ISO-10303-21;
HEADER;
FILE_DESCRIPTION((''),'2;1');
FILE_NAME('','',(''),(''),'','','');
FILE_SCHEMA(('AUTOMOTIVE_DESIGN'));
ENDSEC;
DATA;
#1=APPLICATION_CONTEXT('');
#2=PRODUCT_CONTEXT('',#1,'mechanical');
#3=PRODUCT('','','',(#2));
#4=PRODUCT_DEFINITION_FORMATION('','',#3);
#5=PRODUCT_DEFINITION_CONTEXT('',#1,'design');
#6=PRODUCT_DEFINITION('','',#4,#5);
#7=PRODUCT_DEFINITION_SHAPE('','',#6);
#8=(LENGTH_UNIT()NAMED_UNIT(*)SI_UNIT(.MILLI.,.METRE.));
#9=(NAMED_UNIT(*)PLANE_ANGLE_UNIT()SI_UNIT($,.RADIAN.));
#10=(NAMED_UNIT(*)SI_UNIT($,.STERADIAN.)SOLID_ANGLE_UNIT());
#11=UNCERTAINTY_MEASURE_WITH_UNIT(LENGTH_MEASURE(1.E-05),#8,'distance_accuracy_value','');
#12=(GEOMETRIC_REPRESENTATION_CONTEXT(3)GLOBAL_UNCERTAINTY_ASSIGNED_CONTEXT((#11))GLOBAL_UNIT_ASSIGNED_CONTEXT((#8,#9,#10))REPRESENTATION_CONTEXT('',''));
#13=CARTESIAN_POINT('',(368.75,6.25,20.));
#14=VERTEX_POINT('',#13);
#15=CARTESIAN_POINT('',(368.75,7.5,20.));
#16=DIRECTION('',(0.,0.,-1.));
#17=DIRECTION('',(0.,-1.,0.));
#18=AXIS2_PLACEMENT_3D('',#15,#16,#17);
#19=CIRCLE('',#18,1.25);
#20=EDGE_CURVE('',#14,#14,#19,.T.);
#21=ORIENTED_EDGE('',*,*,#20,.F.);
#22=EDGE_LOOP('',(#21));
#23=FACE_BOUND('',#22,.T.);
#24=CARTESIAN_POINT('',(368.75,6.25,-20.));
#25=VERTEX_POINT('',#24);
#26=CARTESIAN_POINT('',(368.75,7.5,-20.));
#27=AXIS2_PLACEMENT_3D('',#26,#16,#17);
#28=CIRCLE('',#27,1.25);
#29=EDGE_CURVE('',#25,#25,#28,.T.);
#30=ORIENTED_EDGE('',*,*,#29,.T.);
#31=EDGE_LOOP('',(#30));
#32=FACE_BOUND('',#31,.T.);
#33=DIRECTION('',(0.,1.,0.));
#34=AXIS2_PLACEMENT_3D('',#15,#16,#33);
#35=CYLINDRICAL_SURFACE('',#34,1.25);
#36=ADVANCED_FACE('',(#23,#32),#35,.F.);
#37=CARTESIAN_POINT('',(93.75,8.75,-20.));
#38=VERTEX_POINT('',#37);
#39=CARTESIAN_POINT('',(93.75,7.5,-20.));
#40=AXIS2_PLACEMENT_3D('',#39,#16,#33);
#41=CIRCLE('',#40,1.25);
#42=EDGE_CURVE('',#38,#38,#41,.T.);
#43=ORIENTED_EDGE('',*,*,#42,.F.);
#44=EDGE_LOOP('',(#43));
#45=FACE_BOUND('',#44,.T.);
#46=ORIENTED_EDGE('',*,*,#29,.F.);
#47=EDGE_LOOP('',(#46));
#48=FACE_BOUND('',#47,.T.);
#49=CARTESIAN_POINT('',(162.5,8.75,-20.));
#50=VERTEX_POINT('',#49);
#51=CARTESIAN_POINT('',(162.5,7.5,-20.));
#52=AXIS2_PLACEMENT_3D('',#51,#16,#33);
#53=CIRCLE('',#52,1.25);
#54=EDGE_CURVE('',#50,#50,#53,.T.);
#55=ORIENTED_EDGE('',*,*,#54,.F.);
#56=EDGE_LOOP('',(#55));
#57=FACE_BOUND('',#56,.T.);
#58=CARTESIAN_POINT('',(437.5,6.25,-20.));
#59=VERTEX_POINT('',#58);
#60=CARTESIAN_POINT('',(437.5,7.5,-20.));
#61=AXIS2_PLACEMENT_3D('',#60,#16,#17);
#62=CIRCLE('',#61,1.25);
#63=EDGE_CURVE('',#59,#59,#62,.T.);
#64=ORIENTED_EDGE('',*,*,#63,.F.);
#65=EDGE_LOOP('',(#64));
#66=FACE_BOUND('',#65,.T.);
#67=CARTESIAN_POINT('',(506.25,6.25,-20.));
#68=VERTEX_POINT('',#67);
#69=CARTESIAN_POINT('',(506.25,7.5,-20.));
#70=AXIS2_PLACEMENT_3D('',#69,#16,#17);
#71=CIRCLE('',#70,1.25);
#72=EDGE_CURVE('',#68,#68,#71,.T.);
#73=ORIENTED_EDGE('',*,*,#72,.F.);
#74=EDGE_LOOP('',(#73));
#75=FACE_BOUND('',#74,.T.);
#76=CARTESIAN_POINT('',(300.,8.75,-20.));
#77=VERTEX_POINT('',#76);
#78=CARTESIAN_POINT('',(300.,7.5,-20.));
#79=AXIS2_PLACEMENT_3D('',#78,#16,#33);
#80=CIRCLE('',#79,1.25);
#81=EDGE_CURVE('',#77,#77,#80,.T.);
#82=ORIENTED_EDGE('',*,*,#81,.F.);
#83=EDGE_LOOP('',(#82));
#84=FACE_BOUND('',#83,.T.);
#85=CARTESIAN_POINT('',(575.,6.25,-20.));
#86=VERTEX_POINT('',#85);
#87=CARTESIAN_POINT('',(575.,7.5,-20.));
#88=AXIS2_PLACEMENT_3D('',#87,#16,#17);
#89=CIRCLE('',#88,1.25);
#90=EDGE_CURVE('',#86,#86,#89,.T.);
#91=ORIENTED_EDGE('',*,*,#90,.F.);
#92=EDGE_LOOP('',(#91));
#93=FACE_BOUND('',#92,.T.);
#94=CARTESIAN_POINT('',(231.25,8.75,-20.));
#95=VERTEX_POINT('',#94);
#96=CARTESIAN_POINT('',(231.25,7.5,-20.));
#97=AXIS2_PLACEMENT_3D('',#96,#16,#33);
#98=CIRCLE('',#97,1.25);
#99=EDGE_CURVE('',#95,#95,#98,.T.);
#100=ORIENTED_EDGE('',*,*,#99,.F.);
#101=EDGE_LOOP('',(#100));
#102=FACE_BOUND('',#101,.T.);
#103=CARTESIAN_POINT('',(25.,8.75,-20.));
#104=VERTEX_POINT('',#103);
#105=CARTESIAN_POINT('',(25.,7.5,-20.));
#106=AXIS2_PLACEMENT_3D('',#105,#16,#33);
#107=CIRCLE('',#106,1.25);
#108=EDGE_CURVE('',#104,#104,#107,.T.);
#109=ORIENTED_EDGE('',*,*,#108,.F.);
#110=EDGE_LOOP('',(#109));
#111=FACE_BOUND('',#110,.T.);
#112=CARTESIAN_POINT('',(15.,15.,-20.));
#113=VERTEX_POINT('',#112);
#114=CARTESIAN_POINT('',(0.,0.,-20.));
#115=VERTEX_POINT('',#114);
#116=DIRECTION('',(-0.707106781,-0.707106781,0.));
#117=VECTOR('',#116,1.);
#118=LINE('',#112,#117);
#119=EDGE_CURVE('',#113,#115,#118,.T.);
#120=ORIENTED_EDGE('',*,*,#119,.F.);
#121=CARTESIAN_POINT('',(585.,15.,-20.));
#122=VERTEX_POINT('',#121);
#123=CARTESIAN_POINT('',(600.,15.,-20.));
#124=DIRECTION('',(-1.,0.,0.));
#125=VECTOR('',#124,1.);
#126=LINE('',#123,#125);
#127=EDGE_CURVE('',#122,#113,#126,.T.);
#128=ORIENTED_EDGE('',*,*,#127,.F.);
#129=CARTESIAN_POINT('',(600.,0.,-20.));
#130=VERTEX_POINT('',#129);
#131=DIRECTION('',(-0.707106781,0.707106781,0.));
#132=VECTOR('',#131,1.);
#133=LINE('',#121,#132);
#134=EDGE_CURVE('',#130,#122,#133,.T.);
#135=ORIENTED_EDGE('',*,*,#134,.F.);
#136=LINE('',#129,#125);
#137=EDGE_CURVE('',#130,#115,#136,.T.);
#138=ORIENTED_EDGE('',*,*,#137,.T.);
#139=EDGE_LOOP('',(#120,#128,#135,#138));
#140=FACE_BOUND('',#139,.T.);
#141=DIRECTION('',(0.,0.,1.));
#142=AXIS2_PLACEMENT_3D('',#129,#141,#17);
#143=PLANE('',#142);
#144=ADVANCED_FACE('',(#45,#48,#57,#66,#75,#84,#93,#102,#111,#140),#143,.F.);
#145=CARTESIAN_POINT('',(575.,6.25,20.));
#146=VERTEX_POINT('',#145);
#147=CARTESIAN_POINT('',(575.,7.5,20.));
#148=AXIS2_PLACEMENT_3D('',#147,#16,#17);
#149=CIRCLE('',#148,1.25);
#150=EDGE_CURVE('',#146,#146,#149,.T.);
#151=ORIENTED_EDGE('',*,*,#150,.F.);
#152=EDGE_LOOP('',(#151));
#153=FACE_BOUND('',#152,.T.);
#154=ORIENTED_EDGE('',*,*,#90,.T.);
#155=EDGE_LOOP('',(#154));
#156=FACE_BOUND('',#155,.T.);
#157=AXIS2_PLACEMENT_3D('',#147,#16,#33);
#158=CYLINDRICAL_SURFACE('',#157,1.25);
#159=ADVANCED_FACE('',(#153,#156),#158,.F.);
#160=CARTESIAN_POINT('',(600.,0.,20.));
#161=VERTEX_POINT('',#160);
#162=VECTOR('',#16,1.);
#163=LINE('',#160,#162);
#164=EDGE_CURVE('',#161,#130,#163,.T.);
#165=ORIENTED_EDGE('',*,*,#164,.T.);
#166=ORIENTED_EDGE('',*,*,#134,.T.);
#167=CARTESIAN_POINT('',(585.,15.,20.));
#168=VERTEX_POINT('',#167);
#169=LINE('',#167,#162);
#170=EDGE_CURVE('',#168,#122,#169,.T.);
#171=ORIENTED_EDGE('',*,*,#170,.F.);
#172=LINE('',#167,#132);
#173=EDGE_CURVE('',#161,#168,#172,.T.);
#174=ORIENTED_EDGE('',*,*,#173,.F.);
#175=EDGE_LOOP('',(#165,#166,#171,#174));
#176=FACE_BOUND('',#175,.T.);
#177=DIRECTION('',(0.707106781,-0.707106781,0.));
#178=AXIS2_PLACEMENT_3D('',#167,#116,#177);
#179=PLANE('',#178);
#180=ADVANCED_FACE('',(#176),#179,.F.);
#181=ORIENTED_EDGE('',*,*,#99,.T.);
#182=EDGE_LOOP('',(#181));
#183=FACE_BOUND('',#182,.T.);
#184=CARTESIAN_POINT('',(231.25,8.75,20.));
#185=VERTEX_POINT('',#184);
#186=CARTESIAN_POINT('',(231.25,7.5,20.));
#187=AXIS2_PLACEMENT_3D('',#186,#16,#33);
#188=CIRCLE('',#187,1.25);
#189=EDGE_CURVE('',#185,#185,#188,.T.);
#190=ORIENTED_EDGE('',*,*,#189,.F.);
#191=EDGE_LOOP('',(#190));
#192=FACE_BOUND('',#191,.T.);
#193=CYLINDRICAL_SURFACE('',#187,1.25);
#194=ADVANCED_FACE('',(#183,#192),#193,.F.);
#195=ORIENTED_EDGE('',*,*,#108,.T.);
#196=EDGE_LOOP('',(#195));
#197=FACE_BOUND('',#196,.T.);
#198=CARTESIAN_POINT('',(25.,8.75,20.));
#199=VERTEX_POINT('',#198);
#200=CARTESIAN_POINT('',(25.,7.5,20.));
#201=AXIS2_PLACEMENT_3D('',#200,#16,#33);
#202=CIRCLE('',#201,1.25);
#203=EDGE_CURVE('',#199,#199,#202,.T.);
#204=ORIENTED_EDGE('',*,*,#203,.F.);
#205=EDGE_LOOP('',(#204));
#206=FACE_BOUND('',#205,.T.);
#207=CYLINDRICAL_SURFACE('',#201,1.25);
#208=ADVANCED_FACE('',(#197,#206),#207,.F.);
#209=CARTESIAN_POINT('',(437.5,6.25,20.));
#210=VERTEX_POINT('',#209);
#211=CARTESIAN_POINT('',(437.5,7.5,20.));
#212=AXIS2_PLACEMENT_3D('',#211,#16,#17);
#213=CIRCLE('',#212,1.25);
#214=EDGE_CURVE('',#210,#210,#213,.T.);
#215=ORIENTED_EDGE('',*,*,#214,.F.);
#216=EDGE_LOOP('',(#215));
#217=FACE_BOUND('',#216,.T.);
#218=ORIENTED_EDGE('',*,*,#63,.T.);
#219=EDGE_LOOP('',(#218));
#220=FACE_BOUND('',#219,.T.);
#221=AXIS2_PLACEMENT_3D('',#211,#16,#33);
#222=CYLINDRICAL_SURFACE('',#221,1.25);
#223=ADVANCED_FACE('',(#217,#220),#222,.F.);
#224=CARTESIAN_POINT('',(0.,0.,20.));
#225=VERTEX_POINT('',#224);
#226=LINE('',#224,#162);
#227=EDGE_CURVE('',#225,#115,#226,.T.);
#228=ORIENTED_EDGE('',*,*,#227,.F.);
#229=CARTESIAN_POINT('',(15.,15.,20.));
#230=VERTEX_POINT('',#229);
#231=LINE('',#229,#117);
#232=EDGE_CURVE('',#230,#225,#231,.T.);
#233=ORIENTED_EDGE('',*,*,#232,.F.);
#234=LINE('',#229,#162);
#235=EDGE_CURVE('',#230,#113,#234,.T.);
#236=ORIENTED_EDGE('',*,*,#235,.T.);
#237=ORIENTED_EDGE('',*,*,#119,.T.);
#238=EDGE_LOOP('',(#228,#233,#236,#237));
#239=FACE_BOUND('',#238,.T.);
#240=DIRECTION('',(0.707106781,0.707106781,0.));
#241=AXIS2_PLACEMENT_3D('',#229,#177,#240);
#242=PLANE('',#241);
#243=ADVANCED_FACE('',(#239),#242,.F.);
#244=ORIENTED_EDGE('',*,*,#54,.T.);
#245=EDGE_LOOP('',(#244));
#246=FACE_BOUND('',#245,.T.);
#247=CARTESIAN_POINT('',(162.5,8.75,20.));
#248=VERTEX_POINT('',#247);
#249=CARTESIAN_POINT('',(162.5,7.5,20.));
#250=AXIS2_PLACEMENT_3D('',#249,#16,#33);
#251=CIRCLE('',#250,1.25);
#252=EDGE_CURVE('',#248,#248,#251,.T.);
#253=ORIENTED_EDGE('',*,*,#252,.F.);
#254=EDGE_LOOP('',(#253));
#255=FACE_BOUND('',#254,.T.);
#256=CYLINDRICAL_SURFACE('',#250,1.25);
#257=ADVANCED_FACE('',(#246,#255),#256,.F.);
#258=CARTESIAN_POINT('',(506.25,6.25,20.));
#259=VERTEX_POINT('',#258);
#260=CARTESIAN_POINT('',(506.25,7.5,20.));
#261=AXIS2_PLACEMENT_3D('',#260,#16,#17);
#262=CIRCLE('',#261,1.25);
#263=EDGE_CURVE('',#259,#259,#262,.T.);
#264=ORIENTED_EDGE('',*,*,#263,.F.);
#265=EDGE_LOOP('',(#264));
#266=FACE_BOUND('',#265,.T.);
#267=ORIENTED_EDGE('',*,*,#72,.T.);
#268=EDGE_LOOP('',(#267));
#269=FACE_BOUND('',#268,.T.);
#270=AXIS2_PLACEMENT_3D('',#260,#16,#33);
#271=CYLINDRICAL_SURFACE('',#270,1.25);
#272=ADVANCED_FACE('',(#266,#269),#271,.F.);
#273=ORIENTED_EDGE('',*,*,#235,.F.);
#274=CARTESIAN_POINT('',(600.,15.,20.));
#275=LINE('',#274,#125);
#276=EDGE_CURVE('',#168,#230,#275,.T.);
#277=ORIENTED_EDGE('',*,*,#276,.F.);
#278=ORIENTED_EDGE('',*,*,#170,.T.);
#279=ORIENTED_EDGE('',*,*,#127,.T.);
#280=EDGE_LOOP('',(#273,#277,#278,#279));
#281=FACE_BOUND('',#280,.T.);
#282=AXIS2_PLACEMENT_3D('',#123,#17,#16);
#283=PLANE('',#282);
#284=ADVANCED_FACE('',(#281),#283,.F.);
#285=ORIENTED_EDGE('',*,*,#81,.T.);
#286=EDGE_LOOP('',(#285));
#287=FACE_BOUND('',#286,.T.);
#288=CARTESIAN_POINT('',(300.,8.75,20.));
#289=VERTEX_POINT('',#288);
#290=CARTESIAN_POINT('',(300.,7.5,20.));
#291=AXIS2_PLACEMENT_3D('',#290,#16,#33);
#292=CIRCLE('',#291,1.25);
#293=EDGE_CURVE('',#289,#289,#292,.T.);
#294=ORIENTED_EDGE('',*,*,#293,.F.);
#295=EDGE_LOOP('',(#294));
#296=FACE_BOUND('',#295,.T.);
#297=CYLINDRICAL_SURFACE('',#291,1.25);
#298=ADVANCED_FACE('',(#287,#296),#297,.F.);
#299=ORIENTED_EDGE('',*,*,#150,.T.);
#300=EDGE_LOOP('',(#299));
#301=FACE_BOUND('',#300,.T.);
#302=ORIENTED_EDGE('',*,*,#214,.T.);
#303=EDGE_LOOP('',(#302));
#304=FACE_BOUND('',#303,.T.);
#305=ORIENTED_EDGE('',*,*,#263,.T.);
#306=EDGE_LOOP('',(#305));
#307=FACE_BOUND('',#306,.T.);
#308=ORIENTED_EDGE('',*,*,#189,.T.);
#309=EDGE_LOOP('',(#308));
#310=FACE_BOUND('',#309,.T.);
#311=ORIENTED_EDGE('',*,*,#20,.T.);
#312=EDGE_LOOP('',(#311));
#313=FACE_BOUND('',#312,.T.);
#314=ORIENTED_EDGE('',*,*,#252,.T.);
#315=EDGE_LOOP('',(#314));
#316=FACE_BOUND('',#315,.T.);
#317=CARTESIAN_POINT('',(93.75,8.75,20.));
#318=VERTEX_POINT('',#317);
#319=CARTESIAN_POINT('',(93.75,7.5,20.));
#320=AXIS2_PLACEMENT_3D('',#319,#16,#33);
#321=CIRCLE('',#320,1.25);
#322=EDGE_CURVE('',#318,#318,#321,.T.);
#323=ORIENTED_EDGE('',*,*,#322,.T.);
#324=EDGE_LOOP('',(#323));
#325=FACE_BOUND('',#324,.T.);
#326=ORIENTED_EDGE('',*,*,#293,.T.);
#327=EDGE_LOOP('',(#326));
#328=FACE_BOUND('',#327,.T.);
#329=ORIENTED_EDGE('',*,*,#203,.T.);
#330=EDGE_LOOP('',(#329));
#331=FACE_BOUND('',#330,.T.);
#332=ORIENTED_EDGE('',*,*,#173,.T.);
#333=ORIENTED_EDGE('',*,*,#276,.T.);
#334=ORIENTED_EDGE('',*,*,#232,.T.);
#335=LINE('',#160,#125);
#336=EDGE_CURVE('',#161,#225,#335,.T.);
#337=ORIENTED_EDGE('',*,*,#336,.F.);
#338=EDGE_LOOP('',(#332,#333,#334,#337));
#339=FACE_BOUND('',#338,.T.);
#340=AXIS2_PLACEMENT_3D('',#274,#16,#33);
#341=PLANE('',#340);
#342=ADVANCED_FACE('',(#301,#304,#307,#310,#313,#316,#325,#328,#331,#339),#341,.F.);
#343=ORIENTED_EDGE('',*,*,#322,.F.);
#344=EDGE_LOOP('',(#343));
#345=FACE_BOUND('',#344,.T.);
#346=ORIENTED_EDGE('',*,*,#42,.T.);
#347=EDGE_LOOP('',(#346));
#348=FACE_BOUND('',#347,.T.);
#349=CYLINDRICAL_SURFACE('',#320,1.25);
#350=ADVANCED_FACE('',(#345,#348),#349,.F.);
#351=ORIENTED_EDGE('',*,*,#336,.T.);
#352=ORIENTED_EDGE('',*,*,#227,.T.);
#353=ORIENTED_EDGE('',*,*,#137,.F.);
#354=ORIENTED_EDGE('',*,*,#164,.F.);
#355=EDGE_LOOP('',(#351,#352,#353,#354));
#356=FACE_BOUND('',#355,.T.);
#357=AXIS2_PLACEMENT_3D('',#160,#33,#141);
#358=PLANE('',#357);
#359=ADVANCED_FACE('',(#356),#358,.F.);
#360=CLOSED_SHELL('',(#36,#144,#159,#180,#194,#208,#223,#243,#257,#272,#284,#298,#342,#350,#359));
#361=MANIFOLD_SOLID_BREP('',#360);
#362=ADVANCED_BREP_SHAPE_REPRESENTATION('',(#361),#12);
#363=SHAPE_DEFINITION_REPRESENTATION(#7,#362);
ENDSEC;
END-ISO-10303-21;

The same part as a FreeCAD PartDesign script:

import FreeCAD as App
import Part
import Sketcher
from FreeCAD import Vector

doc = App.newDocument("Part")
body = doc.addObject("PartDesign::Body", "Body")

# Sketch on YZ plane
sketch1 = body.newObject("Sketcher::SketchObject", "Sketch")
sketch1.AttachmentSupport = (doc.getObject("YZ_Plane"), [""])
sketch1.MapMode = "FlatFace"
sketch1.addGeometry([
    Part.LineSegment(Vector(0, 20, 0), Vector(0, -20, 0)),
    Part.LineSegment(Vector(0, -20, 0), Vector(15, -20, 0)),
    Part.LineSegment(Vector(15, -20, 0), Vector(15, 20, 0)),
    Part.LineSegment(Vector(15, 20, 0), Vector(0, 20, 0)),
], False)
sketch1.addConstraint([
    Sketcher.Constraint("Coincident", 0, 2, 1, 1),
    Sketcher.Constraint("Coincident", 1, 2, 2, 1),
    Sketcher.Constraint("Coincident", 2, 2, 3, 1),
    Sketcher.Constraint("Coincident", 3, 2, 0, 1),
    Sketcher.Constraint("Vertical", 0),
    Sketcher.Constraint("Horizontal", 1),
    Sketcher.Constraint("Vertical", 2),
    Sketcher.Constraint("Horizontal", 3),
    Sketcher.Constraint("Symmetric", 0, 2, 3, 2, -1, 1),
    Sketcher.Constraint("DistanceX", 1, 1, 1, 2, 15.0),
    Sketcher.Constraint("DistanceY", 0, 2, 0, 1, 40.0),
])
pad1 = body.newObject("PartDesign::Pad", "Pad")
pad1.Profile = sketch1
pad1.Length = 600

# Sketch on XY plane
sketch2 = body.newObject("Sketcher::SketchObject", "Sketch001")
sketch2.AttachmentSupport = (doc.getObject("XY_Plane"), [""])
sketch2.MapMode = "FlatFace"
sketch2.AttachmentOffset = App.Placement(Vector(0, 0, -20), App.Rotation())
sketch2.addGeometry([
    Part.Circle(Vector(25, 7.5, 0), Vector(0, 0, 1), 1.2),  # 0
    Part.Circle(Vector(93.8, 7.5, 0), Vector(0, 0, 1), 1.2),  # 1
    Part.Circle(Vector(162.5, 7.5, 0), Vector(0, 0, 1), 1.2),  # 2
    Part.Circle(Vector(231.2, 7.5, 0), Vector(0, 0, 1), 1.2),  # 3
    Part.Circle(Vector(368.8, 7.5, 0), Vector(0, 0, 1), 1.2),  # 4
    Part.Circle(Vector(437.5, 7.5, 0), Vector(0, 0, 1), 1.2),  # 5
    Part.Circle(Vector(506.2, 7.5, 0), Vector(0, 0, 1), 1.2),  # 6
    Part.Circle(Vector(575, 7.5, 0), Vector(0, 0, 1), 1.2),  # 7
    Part.Circle(Vector(300, 7.5, 0), Vector(0, 0, 1), 1.2),  # 8
    Part.LineSegment(Vector(585, 15, 0), Vector(600, 15, 0)),  # 9
    Part.LineSegment(Vector(600, 15, 0), Vector(600, 0, 0)),  # 10
    Part.LineSegment(Vector(600, 0, 0), Vector(585, 15, 0)),  # 11
    Part.LineSegment(Vector(0, 15, 0), Vector(15, 15, 0)),  # 12
    Part.LineSegment(Vector(15, 15, 0), Vector(0, 0, 0)),  # 13
    Part.LineSegment(Vector(0, 0, 0), Vector(0, 15, 0)),  # 14
], False)
sketch2.addConstraint([
    Sketcher.Constraint("Coincident", 9, 2, 10, 1),
    Sketcher.Constraint("Coincident", 10, 2, 11, 1),
    Sketcher.Constraint("Coincident", 11, 2, 9, 1),
    Sketcher.Constraint("Coincident", 12, 2, 13, 1),
    Sketcher.Constraint("Coincident", 13, 2, 14, 1),
    Sketcher.Constraint("Coincident", 14, 2, 12, 1),
    Sketcher.Constraint("Horizontal", 9),
    Sketcher.Constraint("Vertical", 10),
    Sketcher.Constraint("Horizontal", 12),
    Sketcher.Constraint("Vertical", 14),
    Sketcher.Constraint("Coincident", 13, 2, -1, 1),
    Sketcher.Constraint("Equal", 0, 1),
    Sketcher.Constraint("Equal", 1, 2),
    Sketcher.Constraint("Equal", 2, 3),
    Sketcher.Constraint("Equal", 3, 4),
    Sketcher.Constraint("Equal", 4, 5),
    Sketcher.Constraint("Equal", 5, 6),
    Sketcher.Constraint("Equal", 6, 7),
    Sketcher.Constraint("Equal", 7, 8),
    Sketcher.Constraint("PointOnObject", 10, 2, -1),
    Sketcher.Constraint("Perpendicular", 11, 13),
    Sketcher.Constraint("Horizontal", 0, 3, 1, 3),
    Sketcher.Constraint("Horizontal", 1, 3, 2, 3),
    Sketcher.Constraint("Horizontal", 2, 3, 3, 3),
    Sketcher.Constraint("Horizontal", 3, 3, 4, 3),
    Sketcher.Constraint("Horizontal", 4, 3, 5, 3),
    Sketcher.Constraint("Horizontal", 5, 3, 6, 3),
    Sketcher.Constraint("Horizontal", 6, 3, 7, 3),
    Sketcher.Constraint("Horizontal", 7, 3, 8, 3),
    Sketcher.Constraint("Horizontal", 11, 2, 12, 2),
    Sketcher.Constraint("Equal", 9, 12),
    Sketcher.Constraint("Diameter", 0, 2.5),
    Sketcher.Constraint("DistanceX", 9, 1, 9, 2, 15.0),
    Sketcher.Constraint("DistanceX", -1, 1, 0, 3, 25.0),
    Sketcher.Constraint("DistanceX", -1, 1, 7, 3, 575.0),
    Sketcher.Constraint("DistanceX", -1, 1, 8, 3, 300.0),
    Sketcher.Constraint("DistanceX", -1, 1, 9, 2, 600.0),
    Sketcher.Constraint("DistanceX", 1, 3, 4, 3, 275.0),
    Sketcher.Constraint("DistanceX", 2, 3, 5, 3, 275.0),
    Sketcher.Constraint("DistanceX", 3, 3, 6, 3, 275.0),
    Sketcher.Constraint("DistanceY", -1, 1, 0, 3, 7.5),
    Sketcher.Constraint("DistanceX", -1, 1, 2, 3, 162.5),
    Sketcher.Constraint("DistanceX", 1, 3, 3, 3, 137.5),
    Sketcher.Constraint("DistanceX", -1, 1, 1, 3, 93.75),
])
pocket1 = body.newObject("PartDesign::Pocket", "Pocket")
pocket1.Profile = sketch2
pocket1.Type = "ThroughAll"
pocket1.Reversed = True

doc.recompute()
